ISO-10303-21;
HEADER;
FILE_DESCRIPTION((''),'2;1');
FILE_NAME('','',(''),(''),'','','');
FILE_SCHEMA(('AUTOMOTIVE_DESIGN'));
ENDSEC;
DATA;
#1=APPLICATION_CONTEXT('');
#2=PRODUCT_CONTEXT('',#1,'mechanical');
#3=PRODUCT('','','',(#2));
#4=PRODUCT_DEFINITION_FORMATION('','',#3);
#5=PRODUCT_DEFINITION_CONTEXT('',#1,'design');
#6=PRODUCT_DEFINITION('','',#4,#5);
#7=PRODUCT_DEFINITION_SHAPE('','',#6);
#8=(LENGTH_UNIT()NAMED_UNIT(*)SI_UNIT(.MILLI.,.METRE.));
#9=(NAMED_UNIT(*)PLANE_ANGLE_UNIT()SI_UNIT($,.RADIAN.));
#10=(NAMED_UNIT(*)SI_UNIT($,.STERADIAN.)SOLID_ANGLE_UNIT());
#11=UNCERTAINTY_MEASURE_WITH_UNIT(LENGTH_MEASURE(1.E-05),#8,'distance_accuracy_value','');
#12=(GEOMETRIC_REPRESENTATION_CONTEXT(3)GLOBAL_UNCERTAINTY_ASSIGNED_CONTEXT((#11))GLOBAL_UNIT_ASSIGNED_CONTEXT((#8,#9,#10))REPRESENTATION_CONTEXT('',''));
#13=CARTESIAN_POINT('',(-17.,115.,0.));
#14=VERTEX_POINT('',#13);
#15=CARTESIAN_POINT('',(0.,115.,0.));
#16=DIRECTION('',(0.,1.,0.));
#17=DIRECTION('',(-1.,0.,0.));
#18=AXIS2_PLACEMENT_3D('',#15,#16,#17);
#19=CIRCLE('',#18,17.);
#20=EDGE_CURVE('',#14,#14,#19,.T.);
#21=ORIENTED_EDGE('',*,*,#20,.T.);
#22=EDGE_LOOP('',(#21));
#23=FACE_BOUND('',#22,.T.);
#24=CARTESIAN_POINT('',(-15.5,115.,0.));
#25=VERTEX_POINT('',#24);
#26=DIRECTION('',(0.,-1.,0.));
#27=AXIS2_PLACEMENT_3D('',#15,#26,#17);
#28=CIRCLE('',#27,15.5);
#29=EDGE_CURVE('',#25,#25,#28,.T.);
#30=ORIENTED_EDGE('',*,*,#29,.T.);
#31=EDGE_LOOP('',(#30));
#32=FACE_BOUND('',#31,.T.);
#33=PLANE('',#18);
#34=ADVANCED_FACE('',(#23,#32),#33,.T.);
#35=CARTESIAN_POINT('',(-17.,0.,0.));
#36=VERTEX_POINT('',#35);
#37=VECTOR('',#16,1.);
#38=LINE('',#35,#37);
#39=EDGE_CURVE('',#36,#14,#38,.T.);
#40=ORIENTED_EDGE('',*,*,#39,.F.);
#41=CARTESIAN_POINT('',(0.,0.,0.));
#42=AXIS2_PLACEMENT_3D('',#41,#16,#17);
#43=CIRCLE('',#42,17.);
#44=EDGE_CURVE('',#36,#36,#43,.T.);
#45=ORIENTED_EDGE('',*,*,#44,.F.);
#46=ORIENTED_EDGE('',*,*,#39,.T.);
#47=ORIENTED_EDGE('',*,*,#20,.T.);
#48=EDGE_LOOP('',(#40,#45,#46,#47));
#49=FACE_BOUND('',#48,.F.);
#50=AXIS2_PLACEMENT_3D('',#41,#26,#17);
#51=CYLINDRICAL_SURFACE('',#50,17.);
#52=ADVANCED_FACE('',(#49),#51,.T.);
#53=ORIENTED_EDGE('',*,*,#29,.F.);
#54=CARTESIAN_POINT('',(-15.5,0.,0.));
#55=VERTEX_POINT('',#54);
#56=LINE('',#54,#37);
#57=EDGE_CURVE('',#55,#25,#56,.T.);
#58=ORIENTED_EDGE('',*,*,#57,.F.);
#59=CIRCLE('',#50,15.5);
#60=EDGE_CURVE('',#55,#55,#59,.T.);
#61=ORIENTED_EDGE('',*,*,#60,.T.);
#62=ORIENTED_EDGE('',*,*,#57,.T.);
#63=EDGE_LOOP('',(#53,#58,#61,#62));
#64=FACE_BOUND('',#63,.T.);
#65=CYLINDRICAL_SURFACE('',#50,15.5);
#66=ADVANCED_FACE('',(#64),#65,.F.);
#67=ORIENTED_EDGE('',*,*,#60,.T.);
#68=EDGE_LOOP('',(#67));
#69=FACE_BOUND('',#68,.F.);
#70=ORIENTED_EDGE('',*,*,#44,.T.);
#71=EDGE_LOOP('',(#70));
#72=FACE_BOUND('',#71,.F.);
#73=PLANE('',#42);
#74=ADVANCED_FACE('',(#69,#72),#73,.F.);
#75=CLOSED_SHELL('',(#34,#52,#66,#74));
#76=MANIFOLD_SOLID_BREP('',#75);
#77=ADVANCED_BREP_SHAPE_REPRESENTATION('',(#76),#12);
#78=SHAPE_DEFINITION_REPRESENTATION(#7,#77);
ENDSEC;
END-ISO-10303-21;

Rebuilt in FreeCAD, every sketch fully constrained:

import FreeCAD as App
import Part
import Sketcher
from FreeCAD import Vector


def faces_at(feature, points):
    """Names of the faces that lie closest to the given points."""
    faces = feature.Shape.Faces
    near = lambda p: min(range(len(faces)), key=lambda i: faces[i].distToShape(Part.Vertex(*p))[0])
    return sorted({f"Face{near(p) + 1}" for p in points})

doc = App.newDocument("Part")
params = doc.addObject("Spreadsheet::Sheet", "Params")
for row, (alias, value) in enumerate([
    ("sketch1_diameter", "34 mm"),
    ("pad1_length", "115 mm"),
    ("thickness_wall", "1.5 mm"),
], start=1):
    params.set(f"A{row}", alias)
    params.set(f"B{row}", "=" + value)
    params.setAlias(f"B{row}", alias)

body = doc.addObject("PartDesign::Body", "Body")

# Sketch on XZ plane
sketch1 = body.newObject("Sketcher::SketchObject", "Sketch")
sketch1.AttachmentSupport = (doc.getObject("XZ_Plane"), [""])
sketch1.MapMode = "FlatFace"
sketch1.addGeometry(Part.Circle(Vector(0, 0, 0), Vector(0, 0, 1), 17), False)
sketch1.addConstraint(Sketcher.Constraint("Coincident", 0, 3, -1, 1))
sketch1.addConstraint(Sketcher.Constraint("Diameter", 0, 34.0))
sketch1.setExpression("Constraints[1]", "Params.sketch1_diameter")
pad1 = body.newObject("PartDesign::Pad", "Pad")
pad1.Profile = sketch1
pad1.setExpression("Length", "Params.pad1_length")
pad1.Reversed = True
doc.recompute()

thickness = body.newObject("PartDesign::Thickness", "Thickness")
thickness.Base = (pad1, faces_at(pad1, [(6.04, 0, -5.788), (6.04, 115, -5.788)]))
thickness.setExpression("Value", "Params.thickness_wall")
thickness.Reversed = True
thickness.Join = "Intersection"

doc.recompute()
